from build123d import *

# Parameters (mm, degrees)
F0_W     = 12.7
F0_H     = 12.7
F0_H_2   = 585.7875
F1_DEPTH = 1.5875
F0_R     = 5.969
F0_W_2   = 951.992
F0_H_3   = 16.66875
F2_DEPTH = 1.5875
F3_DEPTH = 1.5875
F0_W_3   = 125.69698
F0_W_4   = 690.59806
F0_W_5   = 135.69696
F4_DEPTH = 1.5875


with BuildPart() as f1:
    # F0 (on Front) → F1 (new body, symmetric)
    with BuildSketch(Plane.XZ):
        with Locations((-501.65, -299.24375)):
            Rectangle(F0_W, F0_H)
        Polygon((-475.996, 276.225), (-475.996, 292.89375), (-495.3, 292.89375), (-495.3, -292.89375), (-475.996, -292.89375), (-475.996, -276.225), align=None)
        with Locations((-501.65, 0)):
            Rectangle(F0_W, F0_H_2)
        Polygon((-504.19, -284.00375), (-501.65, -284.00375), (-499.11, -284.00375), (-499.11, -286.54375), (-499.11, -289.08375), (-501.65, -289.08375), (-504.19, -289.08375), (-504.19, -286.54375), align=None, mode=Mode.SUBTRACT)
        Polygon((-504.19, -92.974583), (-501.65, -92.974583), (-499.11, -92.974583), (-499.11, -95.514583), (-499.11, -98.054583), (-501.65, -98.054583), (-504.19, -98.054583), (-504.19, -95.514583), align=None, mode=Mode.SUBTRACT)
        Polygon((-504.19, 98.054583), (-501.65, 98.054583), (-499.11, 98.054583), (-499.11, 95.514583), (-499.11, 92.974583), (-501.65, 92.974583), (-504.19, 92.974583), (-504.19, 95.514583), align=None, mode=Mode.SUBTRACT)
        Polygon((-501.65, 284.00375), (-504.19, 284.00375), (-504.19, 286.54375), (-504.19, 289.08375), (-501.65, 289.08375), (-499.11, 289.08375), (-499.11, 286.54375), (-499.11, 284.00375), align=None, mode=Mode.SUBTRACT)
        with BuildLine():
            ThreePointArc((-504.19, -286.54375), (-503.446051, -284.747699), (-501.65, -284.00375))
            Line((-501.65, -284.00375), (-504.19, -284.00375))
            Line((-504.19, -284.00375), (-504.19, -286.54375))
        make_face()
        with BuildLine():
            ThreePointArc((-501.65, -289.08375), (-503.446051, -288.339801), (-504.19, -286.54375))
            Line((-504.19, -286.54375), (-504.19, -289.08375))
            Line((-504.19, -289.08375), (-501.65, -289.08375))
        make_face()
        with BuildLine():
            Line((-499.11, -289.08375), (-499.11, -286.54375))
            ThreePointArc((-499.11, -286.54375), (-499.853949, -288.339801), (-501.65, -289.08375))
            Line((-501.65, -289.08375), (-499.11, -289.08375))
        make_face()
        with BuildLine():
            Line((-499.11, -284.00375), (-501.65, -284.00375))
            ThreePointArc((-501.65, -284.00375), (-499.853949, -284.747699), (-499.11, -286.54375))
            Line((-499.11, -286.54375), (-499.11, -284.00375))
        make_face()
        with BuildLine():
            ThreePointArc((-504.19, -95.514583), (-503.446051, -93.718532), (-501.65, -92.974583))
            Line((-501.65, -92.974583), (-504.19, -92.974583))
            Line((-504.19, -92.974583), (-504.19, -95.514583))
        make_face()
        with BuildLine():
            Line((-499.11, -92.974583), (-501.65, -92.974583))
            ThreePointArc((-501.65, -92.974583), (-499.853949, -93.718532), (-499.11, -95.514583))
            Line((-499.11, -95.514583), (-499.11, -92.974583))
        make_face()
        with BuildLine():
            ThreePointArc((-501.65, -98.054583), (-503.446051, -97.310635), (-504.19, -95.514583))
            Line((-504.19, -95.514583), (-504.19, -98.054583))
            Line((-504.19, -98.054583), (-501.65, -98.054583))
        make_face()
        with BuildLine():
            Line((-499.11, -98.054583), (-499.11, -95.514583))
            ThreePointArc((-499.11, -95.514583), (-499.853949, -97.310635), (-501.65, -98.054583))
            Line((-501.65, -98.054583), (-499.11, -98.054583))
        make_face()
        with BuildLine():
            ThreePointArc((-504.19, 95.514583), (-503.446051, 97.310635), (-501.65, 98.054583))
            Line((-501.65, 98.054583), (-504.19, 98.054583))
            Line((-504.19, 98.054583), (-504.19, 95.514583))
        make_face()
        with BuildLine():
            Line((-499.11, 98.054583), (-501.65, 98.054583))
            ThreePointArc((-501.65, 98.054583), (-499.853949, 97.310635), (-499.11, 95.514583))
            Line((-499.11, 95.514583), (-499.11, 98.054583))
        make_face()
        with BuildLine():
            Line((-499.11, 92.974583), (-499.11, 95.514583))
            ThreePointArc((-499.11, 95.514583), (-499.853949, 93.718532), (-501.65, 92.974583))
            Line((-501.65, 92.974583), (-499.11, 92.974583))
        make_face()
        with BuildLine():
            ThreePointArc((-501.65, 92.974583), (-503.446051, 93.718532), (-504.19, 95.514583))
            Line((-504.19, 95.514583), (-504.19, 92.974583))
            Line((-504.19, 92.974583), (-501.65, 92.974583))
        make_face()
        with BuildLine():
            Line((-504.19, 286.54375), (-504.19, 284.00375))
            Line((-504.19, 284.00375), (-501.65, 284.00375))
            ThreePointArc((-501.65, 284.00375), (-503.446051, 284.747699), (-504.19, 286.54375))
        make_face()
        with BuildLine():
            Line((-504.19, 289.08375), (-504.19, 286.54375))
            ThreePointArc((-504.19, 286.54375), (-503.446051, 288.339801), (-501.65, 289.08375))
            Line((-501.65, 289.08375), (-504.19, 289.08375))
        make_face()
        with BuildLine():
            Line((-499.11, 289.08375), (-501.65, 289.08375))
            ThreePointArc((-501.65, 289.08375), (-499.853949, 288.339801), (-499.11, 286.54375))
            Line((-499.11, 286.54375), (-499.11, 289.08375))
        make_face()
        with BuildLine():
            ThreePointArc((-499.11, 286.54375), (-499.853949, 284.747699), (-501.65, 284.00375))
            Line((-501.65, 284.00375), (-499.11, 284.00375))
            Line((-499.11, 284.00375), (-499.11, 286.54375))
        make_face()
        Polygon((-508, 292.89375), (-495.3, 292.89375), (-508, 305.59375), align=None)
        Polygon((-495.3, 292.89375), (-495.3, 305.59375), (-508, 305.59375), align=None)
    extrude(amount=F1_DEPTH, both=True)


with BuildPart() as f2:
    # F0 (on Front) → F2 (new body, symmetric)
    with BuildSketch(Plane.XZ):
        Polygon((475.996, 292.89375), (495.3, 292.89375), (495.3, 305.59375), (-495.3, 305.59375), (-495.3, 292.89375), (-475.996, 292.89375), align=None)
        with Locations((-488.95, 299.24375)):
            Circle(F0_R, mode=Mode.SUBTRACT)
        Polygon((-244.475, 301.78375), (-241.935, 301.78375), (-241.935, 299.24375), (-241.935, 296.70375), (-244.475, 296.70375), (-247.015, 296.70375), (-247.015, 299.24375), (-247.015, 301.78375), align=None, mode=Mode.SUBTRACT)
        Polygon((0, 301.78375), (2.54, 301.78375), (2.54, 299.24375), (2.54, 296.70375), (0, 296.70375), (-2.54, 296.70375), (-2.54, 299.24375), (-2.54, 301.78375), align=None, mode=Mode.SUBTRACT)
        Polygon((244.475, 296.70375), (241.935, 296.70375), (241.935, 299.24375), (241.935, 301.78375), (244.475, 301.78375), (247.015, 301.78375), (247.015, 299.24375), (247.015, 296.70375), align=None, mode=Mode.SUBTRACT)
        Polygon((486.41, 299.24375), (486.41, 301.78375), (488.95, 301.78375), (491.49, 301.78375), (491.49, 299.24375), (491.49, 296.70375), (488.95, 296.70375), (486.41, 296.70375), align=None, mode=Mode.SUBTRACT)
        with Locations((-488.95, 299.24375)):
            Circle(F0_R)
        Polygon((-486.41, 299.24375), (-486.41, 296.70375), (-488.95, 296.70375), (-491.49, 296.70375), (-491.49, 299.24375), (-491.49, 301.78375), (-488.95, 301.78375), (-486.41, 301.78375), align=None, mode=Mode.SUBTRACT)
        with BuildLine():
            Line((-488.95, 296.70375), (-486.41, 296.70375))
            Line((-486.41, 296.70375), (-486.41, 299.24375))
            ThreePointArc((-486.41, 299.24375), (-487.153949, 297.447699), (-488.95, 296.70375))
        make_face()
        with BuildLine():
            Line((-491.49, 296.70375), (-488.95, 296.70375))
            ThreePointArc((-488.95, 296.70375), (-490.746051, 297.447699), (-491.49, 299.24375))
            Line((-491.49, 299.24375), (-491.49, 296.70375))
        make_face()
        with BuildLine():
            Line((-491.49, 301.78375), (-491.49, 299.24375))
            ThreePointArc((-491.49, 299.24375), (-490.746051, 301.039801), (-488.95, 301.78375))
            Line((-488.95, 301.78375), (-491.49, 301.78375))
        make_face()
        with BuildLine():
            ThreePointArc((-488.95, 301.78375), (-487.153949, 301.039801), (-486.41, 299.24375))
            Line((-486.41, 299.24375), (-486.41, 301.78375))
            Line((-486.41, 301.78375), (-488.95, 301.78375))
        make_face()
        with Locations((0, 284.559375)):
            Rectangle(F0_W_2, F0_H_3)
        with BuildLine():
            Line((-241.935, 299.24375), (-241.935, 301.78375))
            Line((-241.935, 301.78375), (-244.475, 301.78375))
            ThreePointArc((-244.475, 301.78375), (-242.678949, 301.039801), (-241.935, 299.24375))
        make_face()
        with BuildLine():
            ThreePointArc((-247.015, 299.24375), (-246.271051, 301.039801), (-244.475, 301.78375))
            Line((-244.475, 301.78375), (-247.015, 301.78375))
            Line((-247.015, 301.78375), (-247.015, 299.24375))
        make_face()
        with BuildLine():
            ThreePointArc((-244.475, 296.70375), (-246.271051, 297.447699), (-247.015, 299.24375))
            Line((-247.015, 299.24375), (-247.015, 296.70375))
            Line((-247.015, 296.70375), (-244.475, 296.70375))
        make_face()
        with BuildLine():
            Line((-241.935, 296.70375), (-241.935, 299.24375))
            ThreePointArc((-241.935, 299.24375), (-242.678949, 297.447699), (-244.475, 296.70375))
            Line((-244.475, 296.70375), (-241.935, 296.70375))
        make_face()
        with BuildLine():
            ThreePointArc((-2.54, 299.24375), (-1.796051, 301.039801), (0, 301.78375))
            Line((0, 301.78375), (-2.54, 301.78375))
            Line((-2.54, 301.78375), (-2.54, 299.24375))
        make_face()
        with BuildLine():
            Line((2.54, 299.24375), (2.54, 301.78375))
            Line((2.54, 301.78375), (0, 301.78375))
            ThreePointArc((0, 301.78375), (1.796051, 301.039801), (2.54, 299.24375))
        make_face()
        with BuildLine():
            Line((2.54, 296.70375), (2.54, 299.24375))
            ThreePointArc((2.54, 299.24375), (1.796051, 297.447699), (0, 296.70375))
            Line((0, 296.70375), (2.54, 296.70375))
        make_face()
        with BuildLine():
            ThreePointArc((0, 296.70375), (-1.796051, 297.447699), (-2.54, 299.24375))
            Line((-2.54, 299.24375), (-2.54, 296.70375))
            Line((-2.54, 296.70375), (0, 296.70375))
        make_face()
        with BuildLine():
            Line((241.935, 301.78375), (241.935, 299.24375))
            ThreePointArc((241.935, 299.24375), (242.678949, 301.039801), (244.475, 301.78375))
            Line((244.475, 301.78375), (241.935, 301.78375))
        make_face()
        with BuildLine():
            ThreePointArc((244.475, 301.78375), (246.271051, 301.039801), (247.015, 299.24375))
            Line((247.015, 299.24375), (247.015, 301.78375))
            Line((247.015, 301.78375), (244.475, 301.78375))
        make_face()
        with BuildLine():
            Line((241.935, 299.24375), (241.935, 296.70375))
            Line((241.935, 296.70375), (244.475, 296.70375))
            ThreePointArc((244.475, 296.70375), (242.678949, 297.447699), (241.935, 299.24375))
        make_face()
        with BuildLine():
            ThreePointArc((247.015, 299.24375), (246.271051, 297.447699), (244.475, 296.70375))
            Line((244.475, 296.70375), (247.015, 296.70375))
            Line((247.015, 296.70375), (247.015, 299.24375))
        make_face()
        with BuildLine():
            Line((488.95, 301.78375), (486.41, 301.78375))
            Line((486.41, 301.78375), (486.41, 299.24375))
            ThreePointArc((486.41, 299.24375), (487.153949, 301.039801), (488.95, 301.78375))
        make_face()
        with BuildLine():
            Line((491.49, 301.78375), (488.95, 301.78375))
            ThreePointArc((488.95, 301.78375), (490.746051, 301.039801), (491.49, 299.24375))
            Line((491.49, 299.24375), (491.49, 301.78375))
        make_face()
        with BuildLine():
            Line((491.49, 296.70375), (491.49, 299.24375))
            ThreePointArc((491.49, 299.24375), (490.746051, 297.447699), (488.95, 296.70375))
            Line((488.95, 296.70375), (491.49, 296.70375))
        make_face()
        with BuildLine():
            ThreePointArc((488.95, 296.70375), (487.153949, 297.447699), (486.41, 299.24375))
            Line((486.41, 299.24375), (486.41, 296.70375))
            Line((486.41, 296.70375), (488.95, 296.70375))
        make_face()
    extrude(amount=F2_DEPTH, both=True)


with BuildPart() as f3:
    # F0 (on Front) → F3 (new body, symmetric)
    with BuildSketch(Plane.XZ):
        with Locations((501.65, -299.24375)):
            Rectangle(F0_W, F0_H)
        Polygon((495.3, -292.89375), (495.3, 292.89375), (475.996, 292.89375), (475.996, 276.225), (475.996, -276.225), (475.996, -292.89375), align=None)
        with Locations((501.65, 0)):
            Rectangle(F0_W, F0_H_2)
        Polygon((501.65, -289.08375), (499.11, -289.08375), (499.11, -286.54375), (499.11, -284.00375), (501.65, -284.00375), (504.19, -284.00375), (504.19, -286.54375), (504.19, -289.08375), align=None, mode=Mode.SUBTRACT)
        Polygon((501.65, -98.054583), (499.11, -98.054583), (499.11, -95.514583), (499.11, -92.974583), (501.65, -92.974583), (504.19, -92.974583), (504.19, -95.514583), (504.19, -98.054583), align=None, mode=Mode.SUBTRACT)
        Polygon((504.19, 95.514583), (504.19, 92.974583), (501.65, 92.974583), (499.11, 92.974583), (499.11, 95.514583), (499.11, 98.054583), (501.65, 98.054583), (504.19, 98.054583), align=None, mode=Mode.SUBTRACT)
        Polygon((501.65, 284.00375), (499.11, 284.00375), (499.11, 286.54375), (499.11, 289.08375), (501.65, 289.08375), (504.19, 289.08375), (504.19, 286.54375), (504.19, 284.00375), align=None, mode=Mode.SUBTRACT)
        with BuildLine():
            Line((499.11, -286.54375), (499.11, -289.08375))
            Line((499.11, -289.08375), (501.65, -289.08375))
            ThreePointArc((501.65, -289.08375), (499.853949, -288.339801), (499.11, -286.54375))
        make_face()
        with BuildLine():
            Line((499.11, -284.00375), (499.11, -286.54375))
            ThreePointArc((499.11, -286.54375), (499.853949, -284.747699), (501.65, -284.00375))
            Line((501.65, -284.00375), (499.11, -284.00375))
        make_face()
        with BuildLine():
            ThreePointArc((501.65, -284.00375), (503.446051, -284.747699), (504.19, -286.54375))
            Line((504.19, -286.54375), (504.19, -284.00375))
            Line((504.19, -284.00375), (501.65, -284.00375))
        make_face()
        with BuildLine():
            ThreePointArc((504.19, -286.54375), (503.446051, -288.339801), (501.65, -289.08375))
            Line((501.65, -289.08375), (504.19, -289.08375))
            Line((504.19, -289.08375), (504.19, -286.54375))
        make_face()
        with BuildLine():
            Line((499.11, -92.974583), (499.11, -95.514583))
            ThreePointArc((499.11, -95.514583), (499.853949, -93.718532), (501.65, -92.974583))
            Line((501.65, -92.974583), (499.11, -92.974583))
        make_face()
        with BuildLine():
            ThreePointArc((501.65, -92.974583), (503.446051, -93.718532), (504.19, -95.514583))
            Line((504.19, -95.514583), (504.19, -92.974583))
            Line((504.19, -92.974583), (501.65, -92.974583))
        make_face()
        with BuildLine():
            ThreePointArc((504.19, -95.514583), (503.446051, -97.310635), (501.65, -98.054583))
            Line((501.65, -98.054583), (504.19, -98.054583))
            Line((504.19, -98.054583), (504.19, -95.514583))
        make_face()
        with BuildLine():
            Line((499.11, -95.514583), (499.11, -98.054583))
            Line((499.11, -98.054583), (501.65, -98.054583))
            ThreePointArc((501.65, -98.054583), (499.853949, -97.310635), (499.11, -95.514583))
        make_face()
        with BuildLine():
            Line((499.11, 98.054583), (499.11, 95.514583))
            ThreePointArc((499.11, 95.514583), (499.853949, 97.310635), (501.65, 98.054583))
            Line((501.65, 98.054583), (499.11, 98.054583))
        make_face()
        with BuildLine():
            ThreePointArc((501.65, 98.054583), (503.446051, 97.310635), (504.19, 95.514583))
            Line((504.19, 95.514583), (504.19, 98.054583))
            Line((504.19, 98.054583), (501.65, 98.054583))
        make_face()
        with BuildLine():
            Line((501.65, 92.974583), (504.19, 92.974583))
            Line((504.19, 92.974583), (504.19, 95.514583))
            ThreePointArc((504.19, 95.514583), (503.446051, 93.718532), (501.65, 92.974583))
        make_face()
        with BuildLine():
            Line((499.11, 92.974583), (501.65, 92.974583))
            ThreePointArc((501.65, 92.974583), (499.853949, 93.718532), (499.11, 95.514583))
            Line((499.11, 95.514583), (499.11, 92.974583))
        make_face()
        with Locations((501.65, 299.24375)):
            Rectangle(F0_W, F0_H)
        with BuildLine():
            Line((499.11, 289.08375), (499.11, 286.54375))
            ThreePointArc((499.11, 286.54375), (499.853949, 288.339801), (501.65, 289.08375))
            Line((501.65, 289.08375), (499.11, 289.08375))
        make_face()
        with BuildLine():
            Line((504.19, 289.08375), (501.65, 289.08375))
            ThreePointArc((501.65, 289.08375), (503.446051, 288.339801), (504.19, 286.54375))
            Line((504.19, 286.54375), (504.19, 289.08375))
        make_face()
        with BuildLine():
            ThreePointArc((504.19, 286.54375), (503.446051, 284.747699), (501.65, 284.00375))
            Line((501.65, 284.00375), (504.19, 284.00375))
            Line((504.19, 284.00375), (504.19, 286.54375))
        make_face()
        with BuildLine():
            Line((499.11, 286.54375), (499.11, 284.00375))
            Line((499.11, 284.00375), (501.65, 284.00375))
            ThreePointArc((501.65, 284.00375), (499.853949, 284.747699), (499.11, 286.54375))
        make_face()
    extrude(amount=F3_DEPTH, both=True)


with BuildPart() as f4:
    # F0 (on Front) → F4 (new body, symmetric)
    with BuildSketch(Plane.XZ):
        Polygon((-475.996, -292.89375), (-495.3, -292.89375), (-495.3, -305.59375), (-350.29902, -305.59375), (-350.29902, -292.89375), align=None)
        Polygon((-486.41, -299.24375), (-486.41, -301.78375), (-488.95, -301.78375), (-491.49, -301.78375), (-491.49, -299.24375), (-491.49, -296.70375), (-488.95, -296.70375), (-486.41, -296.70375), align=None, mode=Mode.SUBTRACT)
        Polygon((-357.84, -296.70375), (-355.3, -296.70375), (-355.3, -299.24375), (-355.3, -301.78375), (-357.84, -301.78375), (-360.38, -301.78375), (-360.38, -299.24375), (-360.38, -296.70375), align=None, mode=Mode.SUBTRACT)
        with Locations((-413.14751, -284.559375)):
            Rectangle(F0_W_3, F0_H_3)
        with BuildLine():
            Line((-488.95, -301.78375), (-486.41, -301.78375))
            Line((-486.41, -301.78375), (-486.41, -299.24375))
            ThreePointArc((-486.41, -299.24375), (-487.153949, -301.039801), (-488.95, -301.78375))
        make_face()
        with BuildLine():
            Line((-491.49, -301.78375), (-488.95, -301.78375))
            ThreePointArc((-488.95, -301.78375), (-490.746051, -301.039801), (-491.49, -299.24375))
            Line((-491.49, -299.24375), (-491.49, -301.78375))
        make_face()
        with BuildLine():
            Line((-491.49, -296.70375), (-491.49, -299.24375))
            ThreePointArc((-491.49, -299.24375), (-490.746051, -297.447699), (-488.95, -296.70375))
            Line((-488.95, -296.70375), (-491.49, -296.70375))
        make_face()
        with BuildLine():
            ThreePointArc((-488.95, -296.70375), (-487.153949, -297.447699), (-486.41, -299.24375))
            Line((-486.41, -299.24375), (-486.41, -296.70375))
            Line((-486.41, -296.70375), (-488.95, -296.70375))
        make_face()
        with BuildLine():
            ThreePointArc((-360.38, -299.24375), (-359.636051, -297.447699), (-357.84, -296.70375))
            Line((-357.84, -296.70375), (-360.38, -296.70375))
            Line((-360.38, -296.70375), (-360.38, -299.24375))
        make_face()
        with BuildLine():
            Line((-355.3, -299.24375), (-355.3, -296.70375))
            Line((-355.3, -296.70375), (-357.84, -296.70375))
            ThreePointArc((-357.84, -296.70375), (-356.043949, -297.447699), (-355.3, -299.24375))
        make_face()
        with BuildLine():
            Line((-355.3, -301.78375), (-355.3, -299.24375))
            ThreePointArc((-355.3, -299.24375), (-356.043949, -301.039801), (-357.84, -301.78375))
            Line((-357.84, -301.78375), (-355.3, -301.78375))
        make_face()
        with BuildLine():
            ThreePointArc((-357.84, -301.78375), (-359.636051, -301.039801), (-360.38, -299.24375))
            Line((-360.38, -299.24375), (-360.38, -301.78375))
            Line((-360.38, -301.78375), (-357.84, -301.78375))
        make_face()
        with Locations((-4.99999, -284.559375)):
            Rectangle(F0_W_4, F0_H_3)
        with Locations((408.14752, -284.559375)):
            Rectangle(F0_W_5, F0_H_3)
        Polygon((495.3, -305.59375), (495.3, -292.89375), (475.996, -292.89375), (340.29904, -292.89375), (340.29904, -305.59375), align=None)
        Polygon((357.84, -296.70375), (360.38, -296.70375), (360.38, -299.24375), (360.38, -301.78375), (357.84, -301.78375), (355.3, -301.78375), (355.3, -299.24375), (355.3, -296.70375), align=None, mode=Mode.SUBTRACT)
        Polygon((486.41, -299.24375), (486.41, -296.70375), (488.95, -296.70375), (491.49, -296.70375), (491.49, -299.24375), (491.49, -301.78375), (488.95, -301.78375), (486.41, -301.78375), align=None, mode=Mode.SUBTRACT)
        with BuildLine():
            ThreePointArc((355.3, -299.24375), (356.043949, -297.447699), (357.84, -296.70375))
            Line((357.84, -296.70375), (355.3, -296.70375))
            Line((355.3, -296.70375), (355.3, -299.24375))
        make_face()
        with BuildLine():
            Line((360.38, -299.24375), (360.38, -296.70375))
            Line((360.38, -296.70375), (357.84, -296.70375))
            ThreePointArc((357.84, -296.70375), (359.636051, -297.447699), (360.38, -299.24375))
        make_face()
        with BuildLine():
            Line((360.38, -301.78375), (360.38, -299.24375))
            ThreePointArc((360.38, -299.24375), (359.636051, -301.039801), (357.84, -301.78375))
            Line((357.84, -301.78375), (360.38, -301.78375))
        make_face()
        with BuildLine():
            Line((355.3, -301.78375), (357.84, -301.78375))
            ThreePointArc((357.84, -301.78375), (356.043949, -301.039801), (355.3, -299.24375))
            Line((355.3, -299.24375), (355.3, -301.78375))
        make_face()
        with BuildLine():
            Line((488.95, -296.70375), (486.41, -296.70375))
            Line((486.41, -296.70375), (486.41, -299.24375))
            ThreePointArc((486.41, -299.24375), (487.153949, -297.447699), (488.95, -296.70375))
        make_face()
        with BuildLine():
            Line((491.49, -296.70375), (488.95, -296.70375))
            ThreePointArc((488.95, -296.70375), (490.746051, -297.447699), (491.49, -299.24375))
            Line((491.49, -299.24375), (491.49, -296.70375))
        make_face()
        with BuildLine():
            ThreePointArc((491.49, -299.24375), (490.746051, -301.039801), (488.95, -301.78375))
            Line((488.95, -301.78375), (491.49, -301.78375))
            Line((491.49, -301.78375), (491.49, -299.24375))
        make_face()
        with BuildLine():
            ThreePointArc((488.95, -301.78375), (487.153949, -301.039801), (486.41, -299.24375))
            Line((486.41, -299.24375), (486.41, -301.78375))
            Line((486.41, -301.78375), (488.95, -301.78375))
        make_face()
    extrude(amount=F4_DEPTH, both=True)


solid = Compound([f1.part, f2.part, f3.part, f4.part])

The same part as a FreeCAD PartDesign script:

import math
import FreeCAD as App
import Part
import Sketcher

V = App.Vector
Q = App.Units.Quantity


def add_polygon(sketch, points):
    """Adds a closed chain of lines whose ends are joined by coincident constraints."""
    first, n = sketch.GeometryCount, len(points)
    for a, b in zip(points, points[1:] + points[:1]):
        sketch.addGeometry(Part.LineSegment(App.Vector(*a, 0), App.Vector(*b, 0)), False)
    for i in range(n):
        sketch.addConstraint(Sketcher.Constraint("Coincident", first + i, 2, first + (i + 1) % n, 1))

doc = App.newDocument("Part")
body = doc.addObject("PartDesign::Body", "Body")

# Sketch on XZ plane
sketch1 = body.newObject("Sketcher::SketchObject", "Sketch")
sketch1.AttachmentSupport = (doc.getObject("XZ_Plane"), [""])
sketch1.MapMode = "FlatFace"
add_polygon(sketch1, [(-508, -305.6), (-495.3, -305.6), (-495.3, -292.9), (-476, -292.9), (-476, 292.9), (-495.3, 292.9), (-495.3, 305.6), (-508, 305.6)])  # lines 0-7
sketch1.addGeometry(Part.ArcOfCircle(Part.Circle(V(-501.6, -286.5, 0), V(0, 0, 1), 2.5), math.radians(90), math.radians(180)), False)  # 8
sketch1.addGeometry(Part.ArcOfCircle(Part.Circle(V(-501.7, -286.5, 0), V(0, 0, 1), 2.5), math.radians(0), math.radians(90)), False)  # 9
sketch1.addGeometry(Part.ArcOfCircle(Part.Circle(V(-501.7, -286.5, 0), V(0, 0, 1), 2.5), math.radians(-90), math.radians(0)), False)  # 10
sketch1.addGeometry(Part.ArcOfCircle(Part.Circle(V(-501.6, -286.5, 0), V(0, 0, 1), 2.5), math.radians(-180), math.radians(-90)), False)  # 11
sketch1.addGeometry(Part.ArcOfCircle(Part.Circle(V(-501.6, -95.5, 0), V(0, 0, 1), 2.5), math.radians(90), math.radians(180)), False)  # 12
sketch1.addGeometry(Part.ArcOfCircle(Part.Circle(V(-501.7, -95.5, 0), V(0, 0, 1), 2.5), math.radians(0), math.radians(90)), False)  # 13
sketch1.addGeometry(Part.ArcOfCircle(Part.Circle(V(-501.6, -95.5, 0), V(0, 0, 1), 2.5), math.radians(-90), math.radians(0)), False)  # 14
sketch1.addGeometry(Part.ArcOfCircle(Part.Circle(V(-501.7, -95.5, 0), V(0, 0, 1), 2.5), math.radians(180), math.radians(270)), False)  # 15
sketch1.addGeometry(Part.ArcOfCircle(Part.Circle(V(-501.7, 95.5, 0), V(0, 0, 1), 2.5), math.radians(90), math.radians(180)), False)  # 16
sketch1.addGeometry(Part.ArcOfCircle(Part.Circle(V(-501.6, 95.5, 0), V(0, 0, 1), 2.5), math.radians(0), math.radians(90)), False)  # 17
sketch1.addGeometry(Part.ArcOfCircle(Part.Circle(V(-501.7, 95.5, 0), V(0, 0, 1), 2.5), math.radians(-90), math.radians(0)), False)  # 18
sketch1.addGeometry(Part.ArcOfCircle(Part.Circle(V(-501.6, 95.5, 0), V(0, 0, 1), 2.5), math.radians(-180), math.radians(-90)), False)  # 19
sketch1.addGeometry(Part.ArcOfCircle(Part.Circle(V(-501.6, 286.5, 0), V(0, 0, 1), 2.5), math.radians(-180), math.radians(-90)), False)  # 20
sketch1.addGeometry(Part.ArcOfCircle(Part.Circle(V(-501.6, 286.5, 0), V(0, 0, 1), 2.5), math.radians(90), math.radians(180)), False)  # 21
sketch1.addGeometry(Part.ArcOfCircle(Part.Circle(V(-501.7, 286.5, 0), V(0, 0, 1), 2.5), math.radians(0), math.radians(90)), False)  # 22
sketch1.addGeometry(Part.ArcOfCircle(Part.Circle(V(-501.7, 286.5, 0), V(0, 0, 1), 2.5), math.radians(-90), math.radians(0)), False)  # 23
sketch1.addConstraint([
    Sketcher.Constraint("Tangent", 8, 1, 9, 2),
    Sketcher.Constraint("Tangent", 9, 1, 10, 2),
    Sketcher.Constraint("Tangent", 10, 1, 11, 2),
    Sketcher.Constraint("Tangent", 11, 1, 8, 2),
    Sketcher.Constraint("Tangent", 12, 1, 13, 2),
    Sketcher.Constraint("Tangent", 13, 1, 14, 2),
    Sketcher.Constraint("Tangent", 14, 1, 15, 2),
    Sketcher.Constraint("Tangent", 15, 1, 12, 2),
    Sketcher.Constraint("Tangent", 16, 1, 17, 2),
    Sketcher.Constraint("Tangent", 17, 1, 18, 2),
    Sketcher.Constraint("Tangent", 18, 1, 19, 2),
    Sketcher.Constraint("Tangent", 19, 1, 16, 2),
    Sketcher.Constraint("Tangent", 20, 1, 21, 2),
    Sketcher.Constraint("Tangent", 21, 1, 22, 2),
    Sketcher.Constraint("Tangent", 22, 1, 23, 2),
    Sketcher.Constraint("Tangent", 23, 1, 20, 2),
    Sketcher.Constraint("Horizontal", 0),
    Sketcher.Constraint("Vertical", 1),
    Sketcher.Constraint("Horizontal", 2),
    Sketcher.Constraint("Vertical", 3),
    Sketcher.Constraint("Horizontal", 4),
    Sketcher.Constraint("Vertical", 5),
    Sketcher.Constraint("Horizontal", 6),
    Sketcher.Constraint("Vertical", 7),
    Sketcher.Constraint("Equal", 8, 9),
    Sketcher.Constraint("Equal", 11, 12),
    Sketcher.Constraint("Equal", 12, 13),
    Sketcher.Constraint("Equal", 15, 16),
    Sketcher.Constraint("Equal", 16, 17),
    Sketcher.Constraint("Equal", 19, 20),
    Sketcher.Constraint("Equal", 20, 21),
    Sketcher.Constraint("Symmetric", 12, 3, 16, 3, -1),
    Sketcher.Constraint("Symmetric", 8, 3, 20, 3, -1),
    Sketcher.Constraint("Symmetric", 1, 2, 4, 2, -1),
    Sketcher.Constraint("Horizontal", 11, 3, 9, 1),
    Sketcher.Constraint("Horizontal", 9, 1, 11, 1),
    Sketcher.Constraint("Horizontal", 15, 3, 13, 1),
    Sketcher.Constraint("Horizontal", 13, 1, 15, 1),
    Sketcher.Constraint("Horizontal", 19, 3, 17, 1),
    Sketcher.Constraint("Horizontal", 17, 1, 19, 1),
    Sketcher.Constraint("Horizontal", 23, 3, 20, 1),
    Sketcher.Constraint("Horizontal", 20, 1, 22, 1),
    Sketcher.Constraint("Vertical", 11, 3, 12, 3),
    Sketcher.Constraint("Vertical", 23, 3, 8, 1),
    Sketcher.Constraint("Vertical", 8, 1, 10, 1),
    Sketcher.Constraint("Vertical", 10, 1, 12, 1),
    Sketcher.Constraint("Vertical", 12, 1, 14, 1),
    Sketcher.Constraint("Vertical", 14, 1, 16, 1),
    Sketcher.Constraint("Vertical", 16, 1, 18, 1),
    Sketcher.Constraint("Vertical", 18, 1, 21, 1),
    Sketcher.Constraint("Vertical", 21, 1, 23, 1),
    Sketcher.Constraint("Equal", 6, 1),
    Sketcher.Constraint("Equal", 1, 5),
    Sketcher.Constraint("Radius", 8, Q("0.1 in")),
    Sketcher.Constraint("DistanceX", 0, 1, 0, 2, Q("0.5 in")),
    Sketcher.Constraint("DistanceX", 6, 2, -1, 1, Q("20 in")),
    Sketcher.Constraint("DistanceX", 2, 1, 2, 2, Q("0.76 in")),
    Sketcher.Constraint("DistanceY", 3, 1, 3, 2, Q("23.0625 in")),
    Sketcher.Constraint("DistanceX", 8, 3, -1, 1, Q("19.75 in")),
    Sketcher.Constraint("DistanceY", 0, 2, 8, 3, Q("0.75 in")),
    Sketcher.Constraint("DistanceY", 12, 3, -1, 1, 95.514584),
])
pad1 = body.newObject("PartDesign::Pad", "Pad")
pad1.Profile = sketch1
pad1.Length = Q("0.125 in")
pad1.Midplane = True
body2 = doc.addObject("PartDesign::Body", "Body001")

# Sketch on XZ plane
sketch2 = body2.newObject("Sketcher::SketchObject", "Sketch001")
sketch2.AttachmentSupport = (doc.getObject("XZ_Plane001"), [""])
sketch2.MapMode = "FlatFace"
add_polygon(sketch2, [(495.3, 292.9), (495.3, 305.6), (-495.3, 305.6), (-495.3, 292.9), (-476, 292.9), (-476, 276.2), (476, 276.2), (476, 292.9)])  # lines 0-7
sketch2.addGeometry(Part.ArcOfCircle(Part.Circle(V(-489, 299.2, 0), V(0, 0, 1), 2.5), math.radians(-90), math.radians(0)), False)  # 8
sketch2.addGeometry(Part.ArcOfCircle(Part.Circle(V(-488.9, 299.2, 0), V(0, 0, 1), 2.5), math.radians(-180), math.radians(-90)), False)  # 9
sketch2.addGeometry(Part.ArcOfCircle(Part.Circle(V(-488.9, 299.2, 0), V(0, 0, 1), 2.5), math.radians(90), math.radians(180)), False)  # 10
sketch2.addGeometry(Part.ArcOfCircle(Part.Circle(V(-489, 299.2, 0), V(0, 0, 1), 2.5), math.radians(0), math.radians(90)), False)  # 11
sketch2.addGeometry(Part.ArcOfCircle(Part.Circle(V(-244.5, 299.2, 0), V(0, 0, 1), 2.5), math.radians(0), math.radians(90)), False)  # 12
sketch2.addGeometry(Part.ArcOfCircle(Part.Circle(V(-244.5, 299.2, 0), V(0, 0, 1), 2.5), math.radians(-90), math.radians(0)), False)  # 13
sketch2.addGeometry(Part.ArcOfCircle(Part.Circle(V(-244.5, 299.2, 0), V(0, 0, 1), 2.5), math.radians(-180), math.radians(-90)), False)  # 14
sketch2.addGeometry(Part.ArcOfCircle(Part.Circle(V(-244.5, 299.2, 0), V(0, 0, 1), 2.5), math.radians(90), math.radians(180)), False)  # 15
sketch2.addGeometry(Part.ArcOfCircle(Part.Circle(V(0, 299.2, 0), V(0, 0, 1), 2.5), math.radians(90), math.radians(180)), False)  # 16
sketch2.addGeometry(Part.ArcOfCircle(Part.Circle(V(0, 299.2, 0), V(0, 0, 1), 2.5), math.radians(0), math.radians(90)), False)  # 17
sketch2.addGeometry(Part.ArcOfCircle(Part.Circle(V(0, 299.2, 0), V(0, 0, 1), 2.5), math.radians(-90), math.radians(0)), False)  # 18
sketch2.addGeometry(Part.ArcOfCircle(Part.Circle(V(0, 299.2, 0), V(0, 0, 1), 2.5), math.radians(-180), math.radians(-90)), False)  # 19
sketch2.addGeometry(Part.ArcOfCircle(Part.Circle(V(244.5, 299.2, 0), V(0, 0, 1), 2.5), math.radians(-180), math.radians(-90)), False)  # 20
sketch2.addGeometry(Part.ArcOfCircle(Part.Circle(V(244.5, 299.2, 0), V(0, 0, 1), 2.5), math.radians(90), math.radians(180)), False)  # 21
sketch2.addGeometry(Part.ArcOfCircle(Part.Circle(V(244.5, 299.2, 0), V(0, 0, 1), 2.5), math.radians(0), math.radians(90)), False)  # 22
sketch2.addGeometry(Part.ArcOfCircle(Part.Circle(V(244.5, 299.2, 0), V(0, 0, 1), 2.5), math.radians(-90), math.radians(0)), False)  # 23
sketch2.addGeometry(Part.ArcOfCircle(Part.Circle(V(489, 299.2, 0), V(0, 0, 1), 2.5), math.radians(90), math.radians(180)), False)  # 24
sketch2.addGeometry(Part.ArcOfCircle(Part.Circle(V(488.9, 299.2, 0), V(0, 0, 1), 2.5), math.radians(0), math.radians(90)), False)  # 25
sketch2.addGeometry(Part.ArcOfCircle(Part.Circle(V(488.9, 299.2, 0), V(0, 0, 1), 2.5), math.radians(-90), math.radians(0)), False)  # 26
sketch2.addGeometry(Part.ArcOfCircle(Part.Circle(V(489, 299.2, 0), V(0, 0, 1), 2.5), math.radians(-180), math.radians(-90)), False)  # 27
sketch2.addConstraint([
    Sketcher.Constraint("Tangent", 8, 1, 9, 2),
    Sketcher.Constraint("Tangent", 9, 1, 10, 2),
    Sketcher.Constraint("Tangent", 10, 1, 11, 2),
    Sketcher.Constraint("Tangent", 11, 1, 8, 2),
    Sketcher.Constraint("Tangent", 12, 1, 13, 2),
    Sketcher.Constraint("Tangent", 13, 1, 14, 2),
    Sketcher.Constraint("Tangent", 14, 1, 15, 2),
    Sketcher.Constraint("Tangent", 15, 1, 12, 2),
    Sketcher.Constraint("Tangent", 16, 1, 17, 2),
    Sketcher.Constraint("Tangent", 17, 1, 18, 2),
    Sketcher.Constraint("Tangent", 18, 1, 19, 2),
    Sketcher.Constraint("Tangent", 19, 1, 16, 2),
    Sketcher.Constraint("Tangent", 20, 1, 21, 2),
    Sketcher.Constraint("Tangent", 21, 1, 22, 2),
    Sketcher.Constraint("Tangent", 22, 1, 23, 2),
    Sketcher.Constraint("Tangent", 23, 1, 20, 2),
    Sketcher.Constraint("Tangent", 24, 1, 25, 2),
    Sketcher.Constraint("Tangent", 25, 1, 26, 2),
    Sketcher.Constraint("Tangent", 26, 1, 27, 2),
    Sketcher.Constraint("Tangent", 27, 1, 24, 2),
    Sketcher.Constraint("Vertical", 0),
    Sketcher.Constraint("Horizontal", 1),
    Sketcher.Constraint("Vertical", 2),
    Sketcher.Constraint("Horizontal", 3),
    Sketcher.Constraint("Vertical", 4),
    Sketcher.Constraint("Horizontal", 5),
    Sketcher.Constraint("Vertical", 6),
    Sketcher.Constraint("Horizontal", 7),
    Sketcher.Constraint("Equal", 8, 9),
    Sketcher.Constraint("Equal", 11, 12),
    Sketcher.Constraint("Equal", 12, 13),
    Sketcher.Constraint("Equal", 15, 16),
    Sketcher.Constraint("Equal", 16, 17),
    Sketcher.Constraint("Equal", 19, 20),
    Sketcher.Constraint("Equal", 20, 21),
    Sketcher.Constraint("Equal", 23, 24),
    Sketcher.Constraint("Equal", 24, 25),
    Sketcher.Constraint("Symmetric", 12, 3, 20, 3, -2),
    Sketcher.Constraint("Symmetric", 8, 3, 24, 3, -2),
    Sketcher.Constraint("Symmetric", 3, 2, 6, 2, -2),
    Sketcher.Constraint("Symmetric", 17, 1, 19, 1, -2),
    Sketcher.Constraint("PointOnObject", 16, 1, -2),
    Sketcher.Constraint("PointOnObject", 18, 1, -2),
    Sketcher.Constraint("Horizontal", 11, 3, 12, 3),
    Sketcher.Constraint("Horizontal", 15, 3, 16, 3),
    Sketcher.Constraint("Horizontal", 27, 3, 9, 1),
    Sketcher.Constraint("Horizontal", 9, 1, 11, 1),
    Sketcher.Constraint("Horizontal", 11, 1, 12, 1),
    Sketcher.Constraint("Horizontal", 12, 1, 14, 1),
    Sketcher.Constraint("Horizontal", 14, 1, 17, 1),
    Sketcher.Constraint("Horizontal", 19, 1, 20, 1),
    Sketcher.Constraint("Horizontal", 20, 1, 22, 1),
    Sketcher.Constraint("Horizontal", 22, 1, 25, 1),
    Sketcher.Constraint("Horizontal", 25, 1, 27, 1),
    Sketcher.Constraint("Vertical", 11, 3, 8, 1),
    Sketcher.Constraint("Vertical", 8, 1, 10, 1),
    Sketcher.Constraint("Vertical", 15, 3, 13, 1),
    Sketcher.Constraint("Vertical", 13, 1, 15, 1),
    Sketcher.Constraint("Vertical", 23, 3, 21, 1),
    Sketcher.Constraint("Vertical", 21, 1, 23, 1),
    Sketcher.Constraint("Vertical", 27, 3, 24, 1),
    Sketcher.Constraint("Vertical", 24, 1, 26, 1),
    Sketcher.Constraint("Equal", 3, 7),
    Sketcher.Constraint("Radius", 8, Q("0.1 in")),
    Sketcher.Constraint("DistanceX", 1, 2, 1, 1, Q("39 in")),
    Sketcher.Constraint("DistanceY", 0, 1, 0, 2, Q("0.5 in")),
    Sketcher.Constraint("DistanceX", 3, 1, 3, 2, Q("0.76 in")),
    Sketcher.Constraint("DistanceY", 4, 2, 4, 1, Q("0.65625 in")),
    Sketcher.Constraint("DistanceX", 8, 3, -1, 1, Q("19.25 in")),
    Sketcher.Constraint("DistanceX", 14, 3, 20, 3, Q("19.25 in")),
    Sketcher.Constraint("DistanceY", 27, 3, 0, 2, Q("0.25 in")),
    Sketcher.Constraint("DistanceY", -1, 1, 8, 3, Q("11.78125 in")),
])
pad2 = body2.newObject("PartDesign::Pad", "Pad001")
pad2.Profile = sketch2
pad2.Length = Q("0.125 in")
pad2.Midplane = True
body3 = doc.addObject("PartDesign::Body", "Body002")

# Sketch on XZ plane
sketch3 = body3.newObject("Sketcher::SketchObject", "Sketch002")
sketch3.AttachmentSupport = (doc.getObject("XZ_Plane002"), [""])
sketch3.MapMode = "FlatFace"
add_polygon(sketch3, [(495.3, -292.9), (495.3, -305.6), (508, -305.6), (508, 305.6), (495.3, 305.6), (495.3, 292.9), (476, 292.9), (476, -292.9)])  # lines 0-7
sketch3.addGeometry(Part.ArcOfCircle(Part.Circle(V(501.7, -286.5, 0), V(0, 0, 1), 2.5), math.radians(-180), math.radians(-90)), False)  # 8
sketch3.addGeometry(Part.ArcOfCircle(Part.Circle(V(501.7, -286.5, 0), V(0, 0, 1), 2.5), math.radians(90), math.radians(180)), False)  # 9
sketch3.addGeometry(Part.ArcOfCircle(Part.Circle(V(501.6, -286.5, 0), V(0, 0, 1), 2.5), math.radians(0), math.radians(90)), False)  # 10
sketch3.addGeometry(Part.ArcOfCircle(Part.Circle(V(501.6, -286.5, 0), V(0, 0, 1), 2.5), math.radians(-90), math.radians(0)), False)  # 11
sketch3.addGeometry(Part.ArcOfCircle(Part.Circle(V(501.7, -95.5, 0), V(0, 0, 1), 2.5), math.radians(90), math.radians(180)), False)  # 12
sketch3.addGeometry(Part.ArcOfCircle(Part.Circle(V(501.6, -95.5, 0), V(0, 0, 1), 2.5), math.radians(0), math.radians(90)), False)  # 13
sketch3.addGeometry(Part.ArcOfCircle(Part.Circle(V(501.7, -95.5, 0), V(0, 0, 1), 2.5), math.radians(-90), math.radians(0)), False)  # 14
sketch3.addGeometry(Part.ArcOfCircle(Part.Circle(V(501.6, -95.5, 0), V(0, 0, 1), 2.5), math.radians(180), math.radians(270)), False)  # 15
sketch3.addGeometry(Part.ArcOfCircle(Part.Circle(V(501.6, 95.5, 0), V(0, 0, 1), 2.5), math.radians(90), math.radians(180)), False)  # 16
sketch3.addGeometry(Part.ArcOfCircle(Part.Circle(V(501.7, 95.5, 0), V(0, 0, 1), 2.5), math.radians(0), math.radians(90)), False)  # 17
sketch3.addGeometry(Part.ArcOfCircle(Part.Circle(V(501.6, 95.5, 0), V(0, 0, 1), 2.5), math.radians(-90), math.radians(0)), False)  # 18
sketch3.addGeometry(Part.ArcOfCircle(Part.Circle(V(501.7, 95.5, 0), V(0, 0, 1), 2.5), math.radians(-180), math.radians(-90)), False)  # 19
sketch3.addGeometry(Part.ArcOfCircle(Part.Circle(V(501.7, 286.5, 0), V(0, 0, 1), 2.5), math.radians(90), math.radians(180)), False)  # 20
sketch3.addGeometry(Part.ArcOfCircle(Part.Circle(V(501.6, 286.5, 0), V(0, 0, 1), 2.5), math.radians(0), math.radians(90)), False)  # 21
sketch3.addGeometry(Part.ArcOfCircle(Part.Circle(V(501.6, 286.5, 0), V(0, 0, 1), 2.5), math.radians(-90), math.radians(0)), False)  # 22
sketch3.addGeometry(Part.ArcOfCircle(Part.Circle(V(501.7, 286.5, 0), V(0, 0, 1), 2.5), math.radians(-180), math.radians(-90)), False)  # 23
sketch3.addConstraint([
    Sketcher.Constraint("Tangent", 8, 1, 9, 2),
    Sketcher.Constraint("Tangent", 9, 1, 10, 2),
    Sketcher.Constraint("Tangent", 10, 1, 11, 2),
    Sketcher.Constraint("Tangent", 11, 1, 8, 2),
    Sketcher.Constraint("Tangent", 12, 1, 13, 2),
    Sketcher.Constraint("Tangent", 13, 1, 14, 2),
    Sketcher.Constraint("Tangent", 14, 1, 15, 2),
    Sketcher.Constraint("Tangent", 15, 1, 12, 2),
    Sketcher.Constraint("Tangent", 16, 1, 17, 2),
    Sketcher.Constraint("Tangent", 17, 1, 18, 2),
    Sketcher.Constraint("Tangent", 18, 1, 19, 2),
    Sketcher.Constraint("Tangent", 19, 1, 16, 2),
    Sketcher.Constraint("Tangent", 20, 1, 21, 2),
    Sketcher.Constraint("Tangent", 21, 1, 22, 2),
    Sketcher.Constraint("Tangent", 22, 1, 23, 2),
    Sketcher.Constraint("Tangent", 23, 1, 20, 2),
    Sketcher.Constraint("Vertical", 0),
    Sketcher.Constraint("Horizontal", 1),
    Sketcher.Constraint("Vertical", 2),
    Sketcher.Constraint("Horizontal", 3),
    Sketcher.Constraint("Vertical", 4),
    Sketcher.Constraint("Horizontal", 5),
    Sketcher.Constraint("Vertical", 6),
    Sketcher.Constraint("Horizontal", 7),
    Sketcher.Constraint("Equal", 8, 9),
    Sketcher.Constraint("Equal", 11, 12),
    Sketcher.Constraint("Equal", 12, 13),
    Sketcher.Constraint("Equal", 15, 16),
    Sketcher.Constraint("Equal", 16, 17),
    Sketcher.Constraint("Equal", 19, 20),
    Sketcher.Constraint("Equal", 20, 21),
    Sketcher.Constraint("Symmetric", 12, 3, 16, 3, -1),
    Sketcher.Constraint("Symmetric", 8, 3, 20, 3, -1),
    Sketcher.Constraint("Symmetric", 0, 2, 3, 2, -1),
    Sketcher.Constraint("Horizontal", 11, 3, 8, 1),
    Sketcher.Constraint("Horizontal", 8, 1, 10, 1),
    Sketcher.Constraint("Horizontal", 15, 3, 13, 1),
    Sketcher.Constraint("Horizontal", 13, 1, 15, 1),
    Sketcher.Constraint("Horizontal", 19, 3, 17, 1),
    Sketcher.Constraint("Horizontal", 17, 1, 19, 1),
    Sketcher.Constraint("Horizontal", 23, 3, 21, 1),
    Sketcher.Constraint("Horizontal", 21, 1, 23, 1),
    Sketcher.Constraint("Vertical", 11, 3, 12, 3),
    Sketcher.Constraint("Vertical", 23, 3, 9, 1),
    Sketcher.Constraint("Vertical", 9, 1, 11, 1),
    Sketcher.Constraint("Vertical", 11, 1, 12, 1),
    Sketcher.Constraint("Vertical", 12, 1, 14, 1),
    Sketcher.Constraint("Vertical", 14, 1, 16, 1),
    Sketcher.Constraint("Vertical", 16, 1, 18, 1),
    Sketcher.Constraint("Vertical", 18, 1, 20, 1),
    Sketcher.Constraint("Vertical", 20, 1, 22, 1),
    Sketcher.Constraint("Equal", 3, 0),
    Sketcher.Constraint("Equal", 0, 4),
    Sketcher.Constraint("Radius", 8, Q("0.1 in")),
    Sketcher.Constraint("DistanceX", 1, 1, 1, 2, Q("0.5 in")),
    Sketcher.Constraint("DistanceX", -1, 1, 1, 2, Q("20 in")),
    Sketcher.Constraint("DistanceX", 5, 2, 5, 1, Q("0.76 in")),
    Sketcher.Constraint("DistanceY", 2, 1, 2, 2, Q("24.0625 in")),
    Sketcher.Constraint("DistanceX", -1, 1, 8, 3, Q("19.75 in")),
    Sketcher.Constraint("DistanceY", 0, 2, 10, 3, Q("0.75 in")),
    Sketcher.Constraint("DistanceY", 12, 3, -1, 1, 95.514584),
])
pad3 = body3.newObject("PartDesign::Pad", "Pad002")
pad3.Profile = sketch3
pad3.Length = Q("0.125 in")
pad3.Midplane = True
body4 = doc.addObject("PartDesign::Body", "Body003")

# Sketch on XZ plane
sketch4 = body4.newObject("Sketcher::SketchObject", "Sketch003")
sketch4.AttachmentSupport = (doc.getObject("XZ_Plane003"), [""])
sketch4.MapMode = "FlatFace"
add_polygon(sketch4, [(-495.3, -292.9), (-495.3, -305.6), (-350.3, -305.6), (-350.3, -292.9), (340.3, -292.9), (340.3, -305.6), (495.3, -305.6), (495.3, -292.9), (476, -292.9), (476, -276.2), (-476, -276.2), (-476, -292.9)])  # lines 0-11
sketch4.addGeometry(Part.ArcOfCircle(Part.Circle(V(-489, -299.2, 0), V(0, 0, 1), 2.5), math.radians(-90), math.radians(0)), False)  # 12
sketch4.addGeometry(Part.ArcOfCircle(Part.Circle(V(-488.9, -299.2, 0), V(0, 0, 1), 2.5), math.radians(-180), math.radians(-90)), False)  # 13
sketch4.addGeometry(Part.ArcOfCircle(Part.Circle(V(-488.9, -299.2, 0), V(0, 0, 1), 2.5), math.radians(90), math.radians(180)), False)  # 14
sketch4.addGeometry(Part.ArcOfCircle(Part.Circle(V(-489, -299.2, 0), V(0, 0, 1), 2.5), math.radians(0), math.radians(90)), False)  # 15
sketch4.addGeometry(Part.ArcOfCircle(Part.Circle(V(-357.8, -299.2, 0), V(0, 0, 1), 2.5), math.radians(90), math.radians(180)), False)  # 16
sketch4.addGeometry(Part.ArcOfCircle(Part.Circle(V(-357.8, -299.2, 0), V(0, 0, 1), 2.5), math.radians(0), math.radians(90)), False)  # 17
sketch4.addGeometry(Part.ArcOfCircle(Part.Circle(V(-357.8, -299.2, 0), V(0, 0, 1), 2.5), math.radians(-90), math.radians(0)), False)  # 18
sketch4.addGeometry(Part.ArcOfCircle(Part.Circle(V(-357.8, -299.2, 0), V(0, 0, 1), 2.5), math.radians(-180), math.radians(-90)), False)  # 19
sketch4.addGeometry(Part.ArcOfCircle(Part.Circle(V(357.8, -299.2, 0), V(0, 0, 1), 2.5), math.radians(90), math.radians(180)), False)  # 20
sketch4.addGeometry(Part.ArcOfCircle(Part.Circle(V(357.8, -299.2, 0), V(0, 0, 1), 2.5), math.radians(0), math.radians(90)), False)  # 21
sketch4.addGeometry(Part.ArcOfCircle(Part.Circle(V(357.8, -299.2, 0), V(0, 0, 1), 2.5), math.radians(-90), math.radians(0)), False)  # 22
sketch4.addGeometry(Part.ArcOfCircle(Part.Circle(V(357.8, -299.2, 0), V(0, 0, 1), 2.5), math.radians(-180), math.radians(-90)), False)  # 23
sketch4.addGeometry(Part.ArcOfCircle(Part.Circle(V(489, -299.2, 0), V(0, 0, 1), 2.5), math.radians(90), math.radians(180)), False)  # 24
sketch4.addGeometry(Part.ArcOfCircle(Part.Circle(V(488.9, -299.2, 0), V(0, 0, 1), 2.5), math.radians(0), math.radians(90)), False)  # 25
sketch4.addGeometry(Part.ArcOfCircle(Part.Circle(V(488.9, -299.2, 0), V(0, 0, 1), 2.5), math.radians(-90), math.radians(0)), False)  # 26
sketch4.addGeometry(Part.ArcOfCircle(Part.Circle(V(489, -299.2, 0), V(0, 0, 1), 2.5), math.radians(-180), math.radians(-90)), False)  # 27
sketch4.addConstraint([
    Sketcher.Constraint("Tangent", 12, 1, 13, 2),
    Sketcher.Constraint("Tangent", 13, 1, 14, 2),
    Sketcher.Constraint("Tangent", 14, 1, 15, 2),
    Sketcher.Constraint("Tangent", 15, 1, 12, 2),
    Sketcher.Constraint("Tangent", 16, 1, 17, 2),
    Sketcher.Constraint("Tangent", 17, 1, 18, 2),
    Sketcher.Constraint("Tangent", 18, 1, 19, 2),
    Sketcher.Constraint("Tangent", 19, 1, 16, 2),
    Sketcher.Constraint("Tangent", 20, 1, 21, 2),
    Sketcher.Constraint("Tangent", 21, 1, 22, 2),
    Sketcher.Constraint("Tangent", 22, 1, 23, 2),
    Sketcher.Constraint("Tangent", 23, 1, 20, 2),
    Sketcher.Constraint("Tangent", 24, 1, 25, 2),
    Sketcher.Constraint("Tangent", 25, 1, 26, 2),
    Sketcher.Constraint("Tangent", 26, 1, 27, 2),
    Sketcher.Constraint("Tangent", 27, 1, 24, 2),
    Sketcher.Constraint("Vertical", 0),
    Sketcher.Constraint("Horizontal", 1),
    Sketcher.Constraint("Vertical", 2),
    Sketcher.Constraint("Horizontal", 3),
    Sketcher.Constraint("Vertical", 4),
    Sketcher.Constraint("Horizontal", 5),
    Sketcher.Constraint("Vertical", 6),
    Sketcher.Constraint("Horizontal", 7),
    Sketcher.Constraint("Vertical", 8),
    Sketcher.Constraint("Horizontal", 9),
    Sketcher.Constraint("Vertical", 10),
    Sketcher.Constraint("Horizontal", 11),
    Sketcher.Constraint("Equal", 12, 13),
    Sketcher.Constraint("Equal", 15, 16),
    Sketcher.Constraint("Equal", 16, 17),
    Sketcher.Constraint("Equal", 19, 20),
    Sketcher.Constraint("Equal", 20, 21),
    Sketcher.Constraint("Equal", 23, 24),
    Sketcher.Constraint("Equal", 24, 25),
    Sketcher.Constraint("Symmetric", 16, 3, 20, 3, -2),
    Sketcher.Constraint("Symmetric", 12, 3, 24, 3, -2),
    Sketcher.Constraint("Symmetric", 0, 2, 5, 2, -2),
    Sketcher.Constraint("Symmetric", 7, 2, 10, 2, -2),
    Sketcher.Constraint("Horizontal", 15, 3, 16, 3),
    Sketcher.Constraint("Horizontal", 3, 2, 6, 2),
    Sketcher.Constraint("Horizontal", 27, 3, 13, 1),
    Sketcher.Constraint("Horizontal", 13, 1, 15, 1),
    Sketcher.Constraint("Horizontal", 15, 1, 17, 1),
    Sketcher.Constraint("Horizontal", 17, 1, 19, 1),
    Sketcher.Constraint("Horizontal", 19, 1, 21, 1),
    Sketcher.Constraint("Horizontal", 21, 1, 23, 1),
    Sketcher.Constraint("Horizontal", 23, 1, 25, 1),
    Sketcher.Constraint("Horizontal", 25, 1, 27, 1),
    Sketcher.Constraint("Vertical", 15, 3, 12, 1),
    Sketcher.Constraint("Vertical", 12, 1, 14, 1),
    Sketcher.Constraint("Vertical", 19, 3, 16, 1),
    Sketcher.Constraint("Vertical", 16, 1, 18, 1),
    Sketcher.Constraint("Vertical", 23, 3, 20, 1),
    Sketcher.Constraint("Vertical", 20, 1, 22, 1),
    Sketcher.Constraint("Vertical", 27, 3, 24, 1),
    Sketcher.Constraint("Vertical", 24, 1, 26, 1),
    Sketcher.Constraint("Radius", 12, Q("0.1 in")),
    Sketcher.Constraint("DistanceY", 0, 2, 0, 1, Q("0.5 in")),
    Sketcher.Constraint("DistanceX", 7, 2, 7, 1, Q("0.76 in")),
    Sketcher.Constraint("DistanceX", 9, 2, 9, 1, Q("37.48 in")),
    Sketcher.Constraint("DistanceY", 8, 1, 8, 2, Q("0.65625 in")),
    Sketcher.Constraint("DistanceX", 12, 3, -1, 1, Q("19.25 in")),
    Sketcher.Constraint("DistanceY", 0, 2, 15, 3, Q("0.25 in")),
    Sketcher.Constraint("DistanceX", 1, 1, 1, 2, Q("5.7087 in")),
    Sketcher.Constraint("DistanceX", 3, 1, 3, 2, Q("27.1889 in")),
    Sketcher.Constraint("DistanceY", 12, 3, -1, 1, Q("11.78125 in")),
    Sketcher.Constraint("DistanceX", 16, 3, -1, 1, 357.839999),
])
pad4 = body4.newObject("PartDesign::Pad", "Pad003")
pad4.Profile = sketch4
pad4.Length = Q("0.125 in")
pad4.Midplane = True

doc.recompute()
